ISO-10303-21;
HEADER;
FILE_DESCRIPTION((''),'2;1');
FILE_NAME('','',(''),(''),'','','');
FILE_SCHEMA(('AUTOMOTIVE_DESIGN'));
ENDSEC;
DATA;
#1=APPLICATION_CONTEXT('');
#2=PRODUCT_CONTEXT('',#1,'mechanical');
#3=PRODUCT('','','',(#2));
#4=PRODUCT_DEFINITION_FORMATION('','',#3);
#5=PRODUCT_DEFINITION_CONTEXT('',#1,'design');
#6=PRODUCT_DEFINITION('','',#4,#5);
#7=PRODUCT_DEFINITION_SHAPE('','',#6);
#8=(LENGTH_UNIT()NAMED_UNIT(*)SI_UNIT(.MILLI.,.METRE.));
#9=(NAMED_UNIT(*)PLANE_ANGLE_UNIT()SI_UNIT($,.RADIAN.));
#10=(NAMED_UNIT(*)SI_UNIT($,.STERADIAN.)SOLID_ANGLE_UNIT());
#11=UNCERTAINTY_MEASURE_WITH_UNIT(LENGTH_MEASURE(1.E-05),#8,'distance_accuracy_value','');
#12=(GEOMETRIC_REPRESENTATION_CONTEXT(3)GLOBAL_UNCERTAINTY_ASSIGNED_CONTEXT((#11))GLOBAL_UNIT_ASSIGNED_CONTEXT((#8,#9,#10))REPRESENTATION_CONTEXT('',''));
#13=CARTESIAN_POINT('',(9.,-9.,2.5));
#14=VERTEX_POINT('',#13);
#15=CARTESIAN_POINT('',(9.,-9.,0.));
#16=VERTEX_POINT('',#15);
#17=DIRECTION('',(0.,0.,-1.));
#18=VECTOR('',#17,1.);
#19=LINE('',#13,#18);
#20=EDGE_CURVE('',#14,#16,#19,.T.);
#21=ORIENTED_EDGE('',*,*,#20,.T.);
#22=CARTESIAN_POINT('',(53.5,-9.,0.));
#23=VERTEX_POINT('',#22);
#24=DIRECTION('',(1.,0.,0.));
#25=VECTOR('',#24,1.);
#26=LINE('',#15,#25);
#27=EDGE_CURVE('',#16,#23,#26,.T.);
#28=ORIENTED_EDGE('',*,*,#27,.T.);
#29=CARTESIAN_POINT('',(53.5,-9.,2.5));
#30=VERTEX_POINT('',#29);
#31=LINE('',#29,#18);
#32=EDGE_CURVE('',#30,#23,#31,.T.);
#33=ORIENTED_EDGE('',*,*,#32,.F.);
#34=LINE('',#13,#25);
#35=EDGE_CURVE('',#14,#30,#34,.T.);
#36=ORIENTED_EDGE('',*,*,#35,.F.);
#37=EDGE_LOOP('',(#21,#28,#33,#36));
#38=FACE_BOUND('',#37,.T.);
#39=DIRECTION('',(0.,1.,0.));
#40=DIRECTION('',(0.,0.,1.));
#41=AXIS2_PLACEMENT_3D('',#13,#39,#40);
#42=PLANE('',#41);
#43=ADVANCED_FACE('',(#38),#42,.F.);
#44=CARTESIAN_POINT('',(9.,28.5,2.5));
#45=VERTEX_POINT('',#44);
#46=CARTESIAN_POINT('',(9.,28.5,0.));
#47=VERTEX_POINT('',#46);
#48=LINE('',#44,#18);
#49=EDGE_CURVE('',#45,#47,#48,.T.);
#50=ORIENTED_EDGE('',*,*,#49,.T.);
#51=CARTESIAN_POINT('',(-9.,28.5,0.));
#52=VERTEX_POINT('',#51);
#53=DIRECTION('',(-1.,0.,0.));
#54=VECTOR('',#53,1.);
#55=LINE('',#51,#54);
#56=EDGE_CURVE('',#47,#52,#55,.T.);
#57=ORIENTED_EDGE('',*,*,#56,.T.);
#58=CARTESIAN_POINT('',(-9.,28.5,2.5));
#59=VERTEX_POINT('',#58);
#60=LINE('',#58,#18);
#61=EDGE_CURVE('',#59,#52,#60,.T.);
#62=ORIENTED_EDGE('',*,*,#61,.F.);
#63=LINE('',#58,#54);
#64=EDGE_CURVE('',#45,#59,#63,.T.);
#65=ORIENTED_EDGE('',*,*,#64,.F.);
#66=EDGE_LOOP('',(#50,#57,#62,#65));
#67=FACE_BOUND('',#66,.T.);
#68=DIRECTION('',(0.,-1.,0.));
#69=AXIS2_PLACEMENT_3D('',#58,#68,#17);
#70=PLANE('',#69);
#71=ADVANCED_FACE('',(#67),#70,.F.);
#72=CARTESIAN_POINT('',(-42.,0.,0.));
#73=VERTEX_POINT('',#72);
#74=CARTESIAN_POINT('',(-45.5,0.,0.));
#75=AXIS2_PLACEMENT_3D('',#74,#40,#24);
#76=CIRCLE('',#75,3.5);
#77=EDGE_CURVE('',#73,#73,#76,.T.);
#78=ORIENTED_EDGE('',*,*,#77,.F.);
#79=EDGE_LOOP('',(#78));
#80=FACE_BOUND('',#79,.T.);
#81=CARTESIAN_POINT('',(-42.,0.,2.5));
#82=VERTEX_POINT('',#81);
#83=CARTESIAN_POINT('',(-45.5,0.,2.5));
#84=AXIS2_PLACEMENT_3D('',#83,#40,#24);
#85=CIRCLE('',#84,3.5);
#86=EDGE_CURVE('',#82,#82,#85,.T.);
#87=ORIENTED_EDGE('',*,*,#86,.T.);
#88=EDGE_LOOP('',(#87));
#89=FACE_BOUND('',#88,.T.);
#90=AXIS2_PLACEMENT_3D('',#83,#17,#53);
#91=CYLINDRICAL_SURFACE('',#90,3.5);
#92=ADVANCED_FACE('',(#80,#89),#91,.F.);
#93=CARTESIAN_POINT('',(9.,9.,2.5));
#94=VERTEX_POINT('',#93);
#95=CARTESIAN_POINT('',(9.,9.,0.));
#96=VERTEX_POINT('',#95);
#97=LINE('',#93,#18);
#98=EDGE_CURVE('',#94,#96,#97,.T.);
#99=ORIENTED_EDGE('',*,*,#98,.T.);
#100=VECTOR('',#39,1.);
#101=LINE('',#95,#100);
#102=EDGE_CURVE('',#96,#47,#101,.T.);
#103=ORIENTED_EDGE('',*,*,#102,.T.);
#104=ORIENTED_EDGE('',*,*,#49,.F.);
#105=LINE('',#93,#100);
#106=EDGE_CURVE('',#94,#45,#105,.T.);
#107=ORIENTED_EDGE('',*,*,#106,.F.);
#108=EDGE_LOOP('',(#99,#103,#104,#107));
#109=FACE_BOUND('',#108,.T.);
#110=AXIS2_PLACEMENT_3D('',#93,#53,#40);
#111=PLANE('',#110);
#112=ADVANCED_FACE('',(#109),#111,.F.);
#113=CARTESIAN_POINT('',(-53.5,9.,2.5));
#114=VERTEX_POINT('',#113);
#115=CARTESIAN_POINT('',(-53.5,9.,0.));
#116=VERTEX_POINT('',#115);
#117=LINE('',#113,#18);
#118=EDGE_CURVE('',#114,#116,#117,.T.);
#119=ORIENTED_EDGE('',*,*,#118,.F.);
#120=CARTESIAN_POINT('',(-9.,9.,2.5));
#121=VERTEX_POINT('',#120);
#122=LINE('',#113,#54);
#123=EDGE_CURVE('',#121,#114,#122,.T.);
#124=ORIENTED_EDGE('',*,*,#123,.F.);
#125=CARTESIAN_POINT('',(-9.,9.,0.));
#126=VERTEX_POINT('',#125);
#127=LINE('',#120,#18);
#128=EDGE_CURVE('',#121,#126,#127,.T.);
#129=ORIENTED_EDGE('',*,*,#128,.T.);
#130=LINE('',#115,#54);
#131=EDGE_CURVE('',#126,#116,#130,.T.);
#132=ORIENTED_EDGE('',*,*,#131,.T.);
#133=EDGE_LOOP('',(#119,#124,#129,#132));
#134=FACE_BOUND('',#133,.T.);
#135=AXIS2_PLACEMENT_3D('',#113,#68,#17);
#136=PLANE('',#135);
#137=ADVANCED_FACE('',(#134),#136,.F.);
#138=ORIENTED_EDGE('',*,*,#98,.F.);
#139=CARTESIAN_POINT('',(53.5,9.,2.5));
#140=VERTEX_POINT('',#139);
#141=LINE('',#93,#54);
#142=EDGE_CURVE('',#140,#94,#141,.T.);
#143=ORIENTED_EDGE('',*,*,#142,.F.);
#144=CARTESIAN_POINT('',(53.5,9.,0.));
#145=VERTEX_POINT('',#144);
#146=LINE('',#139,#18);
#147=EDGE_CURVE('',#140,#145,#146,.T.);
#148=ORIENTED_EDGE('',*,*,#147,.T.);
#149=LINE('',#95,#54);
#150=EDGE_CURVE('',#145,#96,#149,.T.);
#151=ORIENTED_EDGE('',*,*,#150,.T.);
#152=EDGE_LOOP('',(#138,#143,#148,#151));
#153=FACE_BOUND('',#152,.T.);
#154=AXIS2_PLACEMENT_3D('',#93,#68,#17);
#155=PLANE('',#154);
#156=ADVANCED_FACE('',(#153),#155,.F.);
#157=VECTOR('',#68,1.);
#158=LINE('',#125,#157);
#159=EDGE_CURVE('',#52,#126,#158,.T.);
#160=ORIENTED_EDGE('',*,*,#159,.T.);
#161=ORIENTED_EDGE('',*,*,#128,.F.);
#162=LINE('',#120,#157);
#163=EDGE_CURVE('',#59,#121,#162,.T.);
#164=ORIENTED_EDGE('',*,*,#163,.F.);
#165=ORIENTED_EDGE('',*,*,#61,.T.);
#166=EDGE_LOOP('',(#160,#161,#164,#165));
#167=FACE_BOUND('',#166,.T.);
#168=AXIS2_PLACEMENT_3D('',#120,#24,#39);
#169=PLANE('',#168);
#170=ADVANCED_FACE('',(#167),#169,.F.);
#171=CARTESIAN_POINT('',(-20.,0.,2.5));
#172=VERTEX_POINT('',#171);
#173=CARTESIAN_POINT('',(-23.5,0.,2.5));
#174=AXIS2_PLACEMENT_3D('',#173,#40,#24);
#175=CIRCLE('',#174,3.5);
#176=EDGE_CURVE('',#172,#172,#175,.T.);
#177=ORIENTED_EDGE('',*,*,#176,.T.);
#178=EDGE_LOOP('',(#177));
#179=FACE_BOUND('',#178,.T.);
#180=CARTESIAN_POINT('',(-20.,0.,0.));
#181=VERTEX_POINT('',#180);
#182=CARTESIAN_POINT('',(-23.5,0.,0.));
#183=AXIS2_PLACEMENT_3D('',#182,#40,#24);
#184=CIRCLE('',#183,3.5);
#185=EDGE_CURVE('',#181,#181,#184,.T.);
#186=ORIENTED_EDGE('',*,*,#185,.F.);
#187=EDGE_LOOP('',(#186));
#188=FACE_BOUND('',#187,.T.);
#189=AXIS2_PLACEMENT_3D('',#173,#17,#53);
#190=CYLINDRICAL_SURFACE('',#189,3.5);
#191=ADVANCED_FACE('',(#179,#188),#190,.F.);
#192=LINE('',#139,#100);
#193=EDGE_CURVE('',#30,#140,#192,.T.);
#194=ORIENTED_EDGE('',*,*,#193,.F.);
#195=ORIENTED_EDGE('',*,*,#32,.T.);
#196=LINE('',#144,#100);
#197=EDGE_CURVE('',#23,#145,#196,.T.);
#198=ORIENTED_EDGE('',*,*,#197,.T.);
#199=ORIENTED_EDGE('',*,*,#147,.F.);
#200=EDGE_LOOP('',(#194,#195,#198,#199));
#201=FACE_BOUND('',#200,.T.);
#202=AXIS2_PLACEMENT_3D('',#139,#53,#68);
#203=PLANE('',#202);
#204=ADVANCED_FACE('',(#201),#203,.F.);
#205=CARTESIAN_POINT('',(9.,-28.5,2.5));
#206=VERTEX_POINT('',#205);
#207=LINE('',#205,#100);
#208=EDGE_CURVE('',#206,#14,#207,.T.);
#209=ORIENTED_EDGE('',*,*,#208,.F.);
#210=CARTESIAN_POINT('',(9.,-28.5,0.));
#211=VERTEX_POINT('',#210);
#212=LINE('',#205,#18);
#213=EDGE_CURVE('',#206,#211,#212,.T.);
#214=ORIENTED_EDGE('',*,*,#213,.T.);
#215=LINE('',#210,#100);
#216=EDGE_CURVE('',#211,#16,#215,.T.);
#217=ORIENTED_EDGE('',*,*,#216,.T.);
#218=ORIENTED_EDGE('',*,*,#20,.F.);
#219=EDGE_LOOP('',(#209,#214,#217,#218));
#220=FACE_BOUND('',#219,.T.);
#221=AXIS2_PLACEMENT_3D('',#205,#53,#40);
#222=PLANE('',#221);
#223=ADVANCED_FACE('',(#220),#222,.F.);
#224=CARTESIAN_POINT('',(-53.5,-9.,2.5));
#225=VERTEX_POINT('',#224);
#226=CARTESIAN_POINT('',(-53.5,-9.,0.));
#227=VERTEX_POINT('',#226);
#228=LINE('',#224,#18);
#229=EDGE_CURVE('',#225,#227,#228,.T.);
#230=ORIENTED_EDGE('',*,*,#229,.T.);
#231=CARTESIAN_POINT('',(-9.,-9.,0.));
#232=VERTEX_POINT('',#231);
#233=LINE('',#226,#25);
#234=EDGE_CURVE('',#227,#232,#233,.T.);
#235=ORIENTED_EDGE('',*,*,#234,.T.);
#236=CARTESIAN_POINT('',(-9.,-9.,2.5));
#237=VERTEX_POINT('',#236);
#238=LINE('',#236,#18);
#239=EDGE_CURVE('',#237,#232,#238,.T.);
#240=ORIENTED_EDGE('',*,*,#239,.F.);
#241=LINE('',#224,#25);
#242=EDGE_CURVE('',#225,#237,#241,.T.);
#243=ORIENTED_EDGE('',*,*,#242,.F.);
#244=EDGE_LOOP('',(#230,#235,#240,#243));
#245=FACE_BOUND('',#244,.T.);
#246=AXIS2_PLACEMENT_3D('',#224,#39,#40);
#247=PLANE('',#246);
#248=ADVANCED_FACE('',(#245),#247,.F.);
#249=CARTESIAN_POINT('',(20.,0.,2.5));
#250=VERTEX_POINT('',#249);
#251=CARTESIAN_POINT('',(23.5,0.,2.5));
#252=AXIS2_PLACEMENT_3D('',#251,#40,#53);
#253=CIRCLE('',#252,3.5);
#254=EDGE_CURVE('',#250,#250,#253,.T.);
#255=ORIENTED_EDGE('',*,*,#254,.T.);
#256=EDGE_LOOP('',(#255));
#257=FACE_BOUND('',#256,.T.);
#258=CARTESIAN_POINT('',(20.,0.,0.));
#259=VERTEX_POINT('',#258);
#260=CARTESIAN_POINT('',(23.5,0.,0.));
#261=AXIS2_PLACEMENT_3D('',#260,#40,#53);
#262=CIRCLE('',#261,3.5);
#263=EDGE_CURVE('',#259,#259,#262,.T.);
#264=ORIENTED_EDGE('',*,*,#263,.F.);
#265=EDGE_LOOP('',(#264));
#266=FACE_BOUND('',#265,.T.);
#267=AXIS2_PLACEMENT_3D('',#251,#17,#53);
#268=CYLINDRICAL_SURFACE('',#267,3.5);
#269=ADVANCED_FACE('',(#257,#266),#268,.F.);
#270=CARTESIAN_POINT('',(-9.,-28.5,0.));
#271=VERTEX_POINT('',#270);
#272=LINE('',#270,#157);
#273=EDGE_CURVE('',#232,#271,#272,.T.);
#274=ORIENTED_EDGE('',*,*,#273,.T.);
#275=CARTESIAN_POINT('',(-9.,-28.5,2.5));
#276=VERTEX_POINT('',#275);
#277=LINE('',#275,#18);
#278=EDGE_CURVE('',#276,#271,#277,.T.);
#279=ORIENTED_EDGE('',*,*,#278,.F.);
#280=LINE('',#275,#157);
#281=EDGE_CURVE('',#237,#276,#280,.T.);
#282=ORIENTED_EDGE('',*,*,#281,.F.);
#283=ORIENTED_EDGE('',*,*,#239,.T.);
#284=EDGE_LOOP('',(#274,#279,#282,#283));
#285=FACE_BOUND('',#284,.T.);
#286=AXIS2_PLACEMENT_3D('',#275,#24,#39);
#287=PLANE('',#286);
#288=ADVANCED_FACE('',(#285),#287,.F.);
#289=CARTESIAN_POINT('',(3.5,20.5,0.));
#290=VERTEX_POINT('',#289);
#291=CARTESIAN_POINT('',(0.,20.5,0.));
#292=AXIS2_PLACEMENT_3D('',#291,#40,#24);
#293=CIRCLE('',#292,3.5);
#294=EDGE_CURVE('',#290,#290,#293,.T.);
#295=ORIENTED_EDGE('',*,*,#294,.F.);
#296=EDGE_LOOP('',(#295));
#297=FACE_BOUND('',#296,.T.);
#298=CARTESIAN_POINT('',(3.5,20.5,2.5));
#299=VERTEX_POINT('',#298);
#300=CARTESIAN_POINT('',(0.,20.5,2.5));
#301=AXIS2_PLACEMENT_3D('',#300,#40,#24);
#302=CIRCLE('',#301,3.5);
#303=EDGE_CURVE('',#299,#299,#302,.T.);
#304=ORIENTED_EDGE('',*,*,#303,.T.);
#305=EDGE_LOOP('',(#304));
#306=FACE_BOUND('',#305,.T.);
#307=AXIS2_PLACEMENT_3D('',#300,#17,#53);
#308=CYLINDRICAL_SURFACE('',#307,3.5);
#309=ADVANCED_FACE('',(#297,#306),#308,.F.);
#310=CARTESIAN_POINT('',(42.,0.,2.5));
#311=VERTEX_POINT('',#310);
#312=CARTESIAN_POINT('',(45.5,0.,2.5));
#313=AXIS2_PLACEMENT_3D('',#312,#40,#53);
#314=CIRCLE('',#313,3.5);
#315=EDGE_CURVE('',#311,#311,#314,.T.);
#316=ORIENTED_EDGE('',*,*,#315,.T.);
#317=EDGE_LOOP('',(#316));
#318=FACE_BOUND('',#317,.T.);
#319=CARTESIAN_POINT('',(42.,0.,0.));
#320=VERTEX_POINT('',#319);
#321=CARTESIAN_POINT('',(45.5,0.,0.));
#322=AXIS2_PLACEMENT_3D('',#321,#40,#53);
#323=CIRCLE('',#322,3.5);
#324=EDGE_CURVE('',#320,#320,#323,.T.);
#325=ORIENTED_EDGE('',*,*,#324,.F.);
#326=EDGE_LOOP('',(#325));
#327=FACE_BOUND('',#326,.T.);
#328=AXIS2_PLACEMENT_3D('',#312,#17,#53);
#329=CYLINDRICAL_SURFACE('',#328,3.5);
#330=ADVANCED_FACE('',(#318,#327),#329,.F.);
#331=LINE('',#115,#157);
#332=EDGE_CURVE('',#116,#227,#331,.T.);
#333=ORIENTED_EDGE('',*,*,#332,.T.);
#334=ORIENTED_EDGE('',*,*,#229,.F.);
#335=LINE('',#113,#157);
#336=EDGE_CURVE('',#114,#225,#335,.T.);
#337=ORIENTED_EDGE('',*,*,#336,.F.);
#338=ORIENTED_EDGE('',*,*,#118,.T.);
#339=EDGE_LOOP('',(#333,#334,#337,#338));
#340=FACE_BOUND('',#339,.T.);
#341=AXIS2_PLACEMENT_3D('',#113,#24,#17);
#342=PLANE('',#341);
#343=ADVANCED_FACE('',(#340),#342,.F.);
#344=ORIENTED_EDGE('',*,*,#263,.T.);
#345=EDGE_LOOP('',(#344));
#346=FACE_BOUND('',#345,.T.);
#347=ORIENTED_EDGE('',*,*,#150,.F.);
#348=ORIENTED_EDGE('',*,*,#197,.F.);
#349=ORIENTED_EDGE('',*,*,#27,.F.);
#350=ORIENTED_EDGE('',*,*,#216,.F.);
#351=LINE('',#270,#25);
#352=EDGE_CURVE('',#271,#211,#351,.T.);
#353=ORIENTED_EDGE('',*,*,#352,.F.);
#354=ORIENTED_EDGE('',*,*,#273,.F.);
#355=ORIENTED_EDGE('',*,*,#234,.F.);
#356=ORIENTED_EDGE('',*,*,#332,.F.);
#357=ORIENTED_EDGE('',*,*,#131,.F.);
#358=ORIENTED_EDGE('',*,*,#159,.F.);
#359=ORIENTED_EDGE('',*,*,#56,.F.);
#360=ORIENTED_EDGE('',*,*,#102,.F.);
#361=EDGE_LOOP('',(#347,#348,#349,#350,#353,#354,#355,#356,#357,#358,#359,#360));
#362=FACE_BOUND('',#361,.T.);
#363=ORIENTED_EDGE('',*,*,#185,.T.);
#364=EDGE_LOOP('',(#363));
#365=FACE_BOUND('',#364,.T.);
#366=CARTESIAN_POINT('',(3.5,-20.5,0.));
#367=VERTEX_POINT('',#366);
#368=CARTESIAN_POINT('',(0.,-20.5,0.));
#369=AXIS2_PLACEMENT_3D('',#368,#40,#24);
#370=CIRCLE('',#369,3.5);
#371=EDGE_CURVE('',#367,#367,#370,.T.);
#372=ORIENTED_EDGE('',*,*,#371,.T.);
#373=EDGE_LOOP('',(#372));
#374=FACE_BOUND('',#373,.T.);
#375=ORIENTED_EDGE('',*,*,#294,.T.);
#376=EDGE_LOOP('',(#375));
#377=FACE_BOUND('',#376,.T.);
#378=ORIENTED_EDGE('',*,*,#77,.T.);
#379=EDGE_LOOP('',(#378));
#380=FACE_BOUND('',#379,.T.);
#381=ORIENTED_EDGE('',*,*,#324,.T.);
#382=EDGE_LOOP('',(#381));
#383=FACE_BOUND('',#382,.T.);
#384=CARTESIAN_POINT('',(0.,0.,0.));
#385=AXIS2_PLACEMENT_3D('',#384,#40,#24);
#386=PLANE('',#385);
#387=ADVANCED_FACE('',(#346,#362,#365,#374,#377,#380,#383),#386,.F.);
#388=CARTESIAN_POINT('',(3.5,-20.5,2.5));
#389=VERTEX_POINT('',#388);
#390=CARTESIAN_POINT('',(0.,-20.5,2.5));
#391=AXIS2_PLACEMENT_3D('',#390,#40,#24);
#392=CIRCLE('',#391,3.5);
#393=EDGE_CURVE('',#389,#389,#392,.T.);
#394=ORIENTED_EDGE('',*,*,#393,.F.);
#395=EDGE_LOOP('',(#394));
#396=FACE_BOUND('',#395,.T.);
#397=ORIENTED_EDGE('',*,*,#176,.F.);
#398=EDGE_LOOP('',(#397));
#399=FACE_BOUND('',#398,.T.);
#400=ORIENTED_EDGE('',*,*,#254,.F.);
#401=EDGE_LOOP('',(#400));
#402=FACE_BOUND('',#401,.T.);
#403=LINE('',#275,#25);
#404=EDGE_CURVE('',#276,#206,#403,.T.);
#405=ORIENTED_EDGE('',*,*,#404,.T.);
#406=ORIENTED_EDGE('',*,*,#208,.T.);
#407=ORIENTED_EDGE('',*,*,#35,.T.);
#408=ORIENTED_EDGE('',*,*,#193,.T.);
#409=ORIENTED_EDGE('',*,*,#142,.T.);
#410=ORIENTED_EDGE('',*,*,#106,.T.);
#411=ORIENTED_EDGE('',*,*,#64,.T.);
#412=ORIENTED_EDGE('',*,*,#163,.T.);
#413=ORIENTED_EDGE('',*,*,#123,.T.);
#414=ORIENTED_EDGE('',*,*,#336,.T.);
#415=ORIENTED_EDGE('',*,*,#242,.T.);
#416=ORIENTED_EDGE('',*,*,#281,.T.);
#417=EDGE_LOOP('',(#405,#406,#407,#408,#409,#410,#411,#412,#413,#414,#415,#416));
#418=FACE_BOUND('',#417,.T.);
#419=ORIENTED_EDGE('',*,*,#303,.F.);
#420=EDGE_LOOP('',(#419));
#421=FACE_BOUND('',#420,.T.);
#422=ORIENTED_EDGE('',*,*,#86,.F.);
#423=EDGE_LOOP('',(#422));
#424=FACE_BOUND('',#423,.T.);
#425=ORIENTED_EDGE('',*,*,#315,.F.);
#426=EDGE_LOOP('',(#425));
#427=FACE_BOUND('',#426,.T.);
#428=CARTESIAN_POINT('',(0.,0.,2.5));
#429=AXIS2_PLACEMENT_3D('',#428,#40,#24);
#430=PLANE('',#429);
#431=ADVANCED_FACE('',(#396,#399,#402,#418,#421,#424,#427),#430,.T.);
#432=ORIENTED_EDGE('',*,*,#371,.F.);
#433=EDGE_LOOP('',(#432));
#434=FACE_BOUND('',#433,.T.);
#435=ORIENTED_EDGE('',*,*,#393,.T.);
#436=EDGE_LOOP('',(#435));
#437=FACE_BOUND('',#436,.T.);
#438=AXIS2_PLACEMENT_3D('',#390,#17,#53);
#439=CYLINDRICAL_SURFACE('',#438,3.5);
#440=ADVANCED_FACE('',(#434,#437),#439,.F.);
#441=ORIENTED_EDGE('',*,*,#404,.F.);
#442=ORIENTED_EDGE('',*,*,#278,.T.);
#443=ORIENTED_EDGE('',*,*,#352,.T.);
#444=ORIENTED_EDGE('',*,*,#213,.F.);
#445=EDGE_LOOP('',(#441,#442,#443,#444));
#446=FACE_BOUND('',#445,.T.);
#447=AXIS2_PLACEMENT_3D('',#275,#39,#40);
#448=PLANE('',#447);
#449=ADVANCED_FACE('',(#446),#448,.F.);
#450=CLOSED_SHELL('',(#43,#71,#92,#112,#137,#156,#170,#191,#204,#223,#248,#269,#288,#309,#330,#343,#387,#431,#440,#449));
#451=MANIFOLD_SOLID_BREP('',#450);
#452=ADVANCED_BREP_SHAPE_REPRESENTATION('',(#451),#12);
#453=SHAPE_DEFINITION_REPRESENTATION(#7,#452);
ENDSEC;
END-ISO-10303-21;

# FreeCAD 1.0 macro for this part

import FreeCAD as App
import Part
import Sketcher
from FreeCAD import Vector

doc = App.newDocument("Part")
body = doc.addObject("PartDesign::Body", "Body")

# Sketch on XY plane
sketch1 = body.newObject("Sketcher::SketchObject", "Sketch")
sketch1.AttachmentSupport = (doc.getObject("XY_Plane"), [""])
sketch1.MapMode = "FlatFace"
sketch1.addGeometry(Part.LineSegment(Vector(9, -9, 0), Vector(53.5, -9, 0)), False)
sketch1.addGeometry(Part.LineSegment(Vector(53.5, -9, 0), Vector(53.5, 9, 0)), False)
sketch1.addGeometry(Part.LineSegment(Vector(53.5, 9, 0), Vector(9, 9, 0)), False)
sketch1.addGeometry(Part.LineSegment(Vector(9, 9, 0), Vector(9, 28.5, 0)), False)
sketch1.addGeometry(Part.LineSegment(Vector(9, 28.5, 0), Vector(-9, 28.5, 0)), False)
sketch1.addGeometry(Part.LineSegment(Vector(-9, 28.5, 0), Vector(-9, 9, 0)), False)
sketch1.addGeometry(Part.LineSegment(Vector(-9, 9, 0), Vector(-53.5, 9, 0)), False)
sketch1.addGeometry(Part.LineSegment(Vector(-53.5, 9, 0), Vector(-53.5, -9, 0)), False)
sketch1.addGeometry(Part.LineSegment(Vector(-53.5, -9, 0), Vector(-9, -9, 0)), False)
sketch1.addGeometry(Part.LineSegment(Vector(-9, -9, 0), Vector(-9, -28.5, 0)), False)
sketch1.addGeometry(Part.LineSegment(Vector(-9, -28.5, 0), Vector(9, -28.5, 0)), False)
sketch1.addGeometry(Part.LineSegment(Vector(9, -28.5, 0), Vector(9, -9, 0)), False)
sketch1.addGeometry(Part.Circle(Vector(0, -20.5, 0), Vector(0, 0, 1), 3.5), False)
sketch1.addGeometry(Part.Circle(Vector(-45.5, 0, 0), Vector(0, 0, 1), 3.5), False)
sketch1.addGeometry(Part.Circle(Vector(-23.5, 0, 0), Vector(0, 0, 1), 3.5), False)
sketch1.addGeometry(Part.Circle(Vector(0, 20.5, 0), Vector(0, 0, 1), 3.5), False)
sketch1.addGeometry(Part.Circle(Vector(23.5, 0, 0), Vector(0, 0, 1), 3.5), False)
sketch1.addGeometry(Part.Circle(Vector(45.5, 0, 0), Vector(0, 0, 1), 3.5), False)
sketch1.addConstraint(Sketcher.Constraint("Coincident", 0, 2, 1, 1))
sketch1.addConstraint(Sketcher.Constraint("Coincident", 1, 2, 2, 1))
sketch1.addConstraint(Sketcher.Constraint("Coincident", 2, 2, 3, 1))
sketch1.addConstraint(Sketcher.Constraint("Coincident", 3, 2, 4, 1))
sketch1.addConstraint(Sketcher.Constraint("Coincident", 4, 2, 5, 1))
sketch1.addConstraint(Sketcher.Constraint("Coincident", 5, 2, 6, 1))
sketch1.addConstraint(Sketcher.Constraint("Coincident", 6, 2, 7, 1))
sketch1.addConstraint(Sketcher.Constraint("Coincident", 7, 2, 8, 1))
sketch1.addConstraint(Sketcher.Constraint("Coincident", 8, 2, 9, 1))
sketch1.addConstraint(Sketcher.Constraint("Coincident", 9, 2, 10, 1))
sketch1.addConstraint(Sketcher.Constraint("Coincident", 10, 2, 11, 1))
sketch1.addConstraint(Sketcher.Constraint("Coincident", 11, 2, 0, 1))
sketch1.addConstraint(Sketcher.Constraint("Horizontal", 0))
sketch1.addConstraint(Sketcher.Constraint("Vertical", 1))
sketch1.addConstraint(Sketcher.Constraint("Horizontal", 2))
sketch1.addConstraint(Sketcher.Constraint("Vertical", 3))
sketch1.addConstraint(Sketcher.Constraint("Horizontal", 4))
sketch1.addConstraint(Sketcher.Constraint("Vertical", 5))
sketch1.addConstraint(Sketcher.Constraint("Horizontal", 6))
sketch1.addConstraint(Sketcher.Constraint("Vertical", 7))
sketch1.addConstraint(Sketcher.Constraint("Horizontal", 8))
sketch1.addConstraint(Sketcher.Constraint("Vertical", 9))
sketch1.addConstraint(Sketcher.Constraint("Horizontal", 10))
sketch1.addConstraint(Sketcher.Constraint("Vertical", 11))
sketch1.addConstraint(Sketcher.Constraint("Equal", 12, 13))
sketch1.addConstraint(Sketcher.Constraint("Equal", 13, 14))
sketch1.addConstraint(Sketcher.Constraint("Equal", 14, 15))
sketch1.addConstraint(Sketcher.Constraint("Equal", 15, 16))
sketch1.addConstraint(Sketcher.Constraint("Equal", 16, 17))
sketch1.addConstraint(Sketcher.Constraint("Symmetric", 12, 3, 15, 3, -1, 1))
sketch1.addConstraint(Sketcher.Constraint("Symmetric", 14, 3, 16, 3, -1, 1))
sketch1.addConstraint(Sketcher.Constraint("Symmetric", 13, 3, 17, 3, -1, 1))
sketch1.addConstraint(Sketcher.Constraint("Symmetric", 0, 2, 6, 2, -1, 1))
sketch1.addConstraint(Sketcher.Constraint("Symmetric", 2, 2, 8, 2, -1, 1))
sketch1.addConstraint(Sketcher.Constraint("Symmetric", 4, 2, 10, 2, -1, 1))
sketch1.addConstraint(Sketcher.Constraint("Symmetric", 2, 2, 5, 2, -2))
sketch1.addConstraint(Sketcher.Constraint("PointOnObject", 12, 3, -2))
sketch1.addConstraint(Sketcher.Constraint("PointOnObject", 13, 3, -1))
sketch1.addConstraint(Sketcher.Constraint("PointOnObject", 14, 3, -1))
sketch1.addConstraint(Sketcher.Constraint("Equal", 10, 1))
sketch1.addConstraint(Sketcher.Constraint("Diameter", 12, 7.0))
sketch1.addConstraint(Sketcher.Constraint("DistanceX", 4, 2, 4, 1, 18.0))
sketch1.addConstraint(Sketcher.Constraint("DistanceX", 0, 1, 0, 2, 44.5))
sketch1.addConstraint(Sketcher.Constraint("DistanceY", 3, 1, 3, 2, 19.5))
sketch1.addConstraint(Sketcher.Constraint("DistanceX", 13, 3, 14, 3, 22.0))
sketch1.addConstraint(Sketcher.Constraint("DistanceY", 12, 3, 15, 3, 41.0))
sketch1.addConstraint(Sketcher.Constraint("DistanceX", 14, 3, 16, 3, 47.0))
pad1 = body.newObject("PartDesign::Pad", "Pad")
pad1.Profile = sketch1
pad1.Length = 2.5

doc.recompute()
